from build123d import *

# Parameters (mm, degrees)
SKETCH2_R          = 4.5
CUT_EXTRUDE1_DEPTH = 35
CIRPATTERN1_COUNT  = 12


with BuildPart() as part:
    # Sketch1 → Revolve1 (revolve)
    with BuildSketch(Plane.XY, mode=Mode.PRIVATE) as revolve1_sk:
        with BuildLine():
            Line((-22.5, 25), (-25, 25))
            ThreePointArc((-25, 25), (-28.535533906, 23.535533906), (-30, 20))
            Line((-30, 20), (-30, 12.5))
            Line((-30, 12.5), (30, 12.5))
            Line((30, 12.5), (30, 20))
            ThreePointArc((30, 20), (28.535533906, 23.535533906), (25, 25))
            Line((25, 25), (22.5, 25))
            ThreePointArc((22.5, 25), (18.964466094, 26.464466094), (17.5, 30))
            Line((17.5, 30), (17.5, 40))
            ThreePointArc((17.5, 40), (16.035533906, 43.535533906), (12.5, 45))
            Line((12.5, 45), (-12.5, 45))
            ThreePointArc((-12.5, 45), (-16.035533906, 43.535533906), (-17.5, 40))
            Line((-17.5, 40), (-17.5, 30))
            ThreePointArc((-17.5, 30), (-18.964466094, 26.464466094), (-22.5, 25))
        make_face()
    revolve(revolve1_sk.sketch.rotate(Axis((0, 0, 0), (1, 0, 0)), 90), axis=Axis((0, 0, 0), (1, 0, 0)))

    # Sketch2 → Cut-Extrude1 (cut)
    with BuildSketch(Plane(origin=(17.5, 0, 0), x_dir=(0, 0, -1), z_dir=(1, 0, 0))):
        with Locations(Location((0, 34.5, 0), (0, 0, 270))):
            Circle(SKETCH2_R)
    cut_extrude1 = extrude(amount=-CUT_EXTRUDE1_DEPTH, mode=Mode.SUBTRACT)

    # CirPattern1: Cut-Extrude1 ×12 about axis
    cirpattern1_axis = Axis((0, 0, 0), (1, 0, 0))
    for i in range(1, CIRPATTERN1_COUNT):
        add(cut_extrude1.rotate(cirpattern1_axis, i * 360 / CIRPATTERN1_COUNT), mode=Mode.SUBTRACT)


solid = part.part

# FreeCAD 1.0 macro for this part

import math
import FreeCAD as App
import Part
import Sketcher
from FreeCAD import Vector
Q = App.Units.Quantity

doc = App.newDocument("Part")
body = doc.addObject("PartDesign::Body", "Body")

# Sketch on XY plane
sketch1 = body.newObject("Sketcher::SketchObject", "Sketch")
sketch1.AttachmentSupport = (doc.getObject("XY_Plane"), [""])
sketch1.MapMode = "FlatFace"
sketch1.addGeometry(Part.LineSegment(Vector(-22.5, 25, 0), Vector(-25, 25, 0)), False)
sketch1.addGeometry(Part.ArcOfCircle(Part.Circle(Vector(-25, 20, 0), Vector(0, 0, 1), 5), math.radians(90), math.radians(180)), False)
sketch1.addGeometry(Part.LineSegment(Vector(-30, 20, 0), Vector(-30, 12.5, 0)), False)
sketch1.addGeometry(Part.LineSegment(Vector(-30, 12.5, 0), Vector(30, 12.5, 0)), False)
sketch1.addGeometry(Part.LineSegment(Vector(30, 12.5, 0), Vector(30, 20, 0)), False)
sketch1.addGeometry(Part.ArcOfCircle(Part.Circle(Vector(25, 20, 0), Vector(0, 0, 1), 5), math.radians(0), math.radians(90)), False)
sketch1.addGeometry(Part.LineSegment(Vector(25, 25, 0), Vector(22.5, 25, 0)), False)
sketch1.addGeometry(Part.ArcOfCircle(Part.Circle(Vector(22.5, 30, 0), Vector(0, 0, 1), 5), math.radians(180), math.radians(270)), False)
sketch1.addGeometry(Part.LineSegment(Vector(17.5, 30, 0), Vector(17.5, 40, 0)), False)
sketch1.addGeometry(Part.ArcOfCircle(Part.Circle(Vector(12.5, 40, 0), Vector(0, 0, 1), 5), math.radians(0), math.radians(90)), False)
sketch1.addGeometry(Part.LineSegment(Vector(12.5, 45, 0), Vector(-12.5, 45, 0)), False)
sketch1.addGeometry(Part.ArcOfCircle(Part.Circle(Vector(-12.5, 40, 0), Vector(0, 0, 1), 5), math.radians(90), math.radians(180)), False)
sketch1.addGeometry(Part.LineSegment(Vector(-17.5, 40, 0), Vector(-17.5, 30, 0)), False)
sketch1.addGeometry(Part.ArcOfCircle(Part.Circle(Vector(-22.5, 30, 0), Vector(0, 0, 1), 5), math.radians(-90), math.radians(0)), False)
sketch1.addConstraint(Sketcher.Constraint("Tangent", 0, 2, 1, 1))
sketch1.addConstraint(Sketcher.Constraint("Tangent", 1, 2, 2, 1))
sketch1.addConstraint(Sketcher.Constraint("Coincident", 2, 2, 3, 1))
sketch1.addConstraint(Sketcher.Constraint("Coincident", 3, 2, 4, 1))
sketch1.addConstraint(Sketcher.Constraint("Tangent", 4, 2, 5, 1))
sketch1.addConstraint(Sketcher.Constraint("Tangent", 5, 2, 6, 1))
sketch1.addConstraint(Sketcher.Constraint("Tangent", 6, 2, 7, 2))
sketch1.addConstraint(Sketcher.Constraint("Tangent", 7, 1, 8, 1))
sketch1.addConstraint(Sketcher.Constraint("Tangent", 8, 2, 9, 1))
sketch1.addConstraint(Sketcher.Constraint("Tangent", 9, 2, 10, 1))
sketch1.addConstraint(Sketcher.Constraint("Tangent", 10, 2, 11, 1))
sketch1.addConstraint(Sketcher.Constraint("Tangent", 11, 2, 12, 1))
sketch1.addConstraint(Sketcher.Constraint("Tangent", 12, 2, 13, 2))
sketch1.addConstraint(Sketcher.Constraint("Tangent", 13, 1, 0, 1))
sketch1.addConstraint(Sketcher.Constraint("Horizontal", 0))
sketch1.addConstraint(Sketcher.Constraint("Vertical", 2))
sketch1.addConstraint(Sketcher.Constraint("Horizontal", 3))
sketch1.addConstraint(Sketcher.Constraint("Vertical", 4))
sketch1.addConstraint(Sketcher.Constraint("Horizontal", 6))
sketch1.addConstraint(Sketcher.Constraint("Vertical", 8))
sketch1.addConstraint(Sketcher.Constraint("Horizontal", 10))
sketch1.addConstraint(Sketcher.Constraint("Vertical", 12))
sketch1.addConstraint(Sketcher.Constraint("Equal", 1, 5))
sketch1.addConstraint(Sketcher.Constraint("Equal", 5, 7))
sketch1.addConstraint(Sketcher.Constraint("Equal", 7, 9))
sketch1.addConstraint(Sketcher.Constraint("Equal", 9, 11))
sketch1.addConstraint(Sketcher.Constraint("Equal", 11, 13))
sketch1.addConstraint(Sketcher.Constraint("Symmetric", 1, 3, 5, 3, -2))
sketch1.addConstraint(Sketcher.Constraint("Equal", 0, 6))
sketch1.addConstraint(Sketcher.Constraint("Radius", 1, Q("5 mm")))
sketch1.addConstraint(Sketcher.Constraint("DistanceX", 3, 1, 3, 2, Q("60 mm")))
sketch1.addConstraint(Sketcher.Constraint("DistanceX", 10, 2, 10, 1, Q("25 mm")))
sketch1.addConstraint(Sketcher.Constraint("DistanceY", 8, 1, 8, 2, Q("10 mm")))
sketch1.addConstraint(Sketcher.Constraint("DistanceY", 2, 2, 2, 1, Q("7.5 mm")))
sketch1.addConstraint(Sketcher.Constraint("DistanceY", -1, 1, 1, 3, Q("20 mm")))
revolution = body.newObject("PartDesign::Revolution", "Revolution")
revolution.Profile = sketch1
revolution.ReferenceAxis = (sketch1, ["H_Axis"])
revolution.Angle = 360

# Sketch on YZ plane
sketch2 = body.newObject("Sketcher::SketchObject", "Sketch001")
sketch2.AttachmentSupport = (doc.getObject("YZ_Plane"), [""])
sketch2.MapMode = "FlatFace"
sketch2.AttachmentOffset = App.Placement(Vector(0, 0, 17.5), App.Rotation())
sketch2.addGeometry(Part.Circle(Vector(34.5, 0, 0), Vector(0, 0, 1), 4.5), False)
sketch2.addConstraint(Sketcher.Constraint("PointOnObject", 0, 3, -1))
sketch2.addConstraint(Sketcher.Constraint("Diameter", 0, Q("9 mm")))
sketch2.addConstraint(Sketcher.Constraint("DistanceX", -1, 1, 0, 3, Q("34.5 mm")))
pocket1 = body.newObject("PartDesign::Pocket", "Pocket")
pocket1.Profile = sketch2
pocket1.Length = 35
doc.recompute()

polarpattern = body.newObject("PartDesign::PolarPattern", "PolarPattern")
polarpattern.Originals = [pocket1]
polarpattern.Axis = (doc.getObject("X_Axis"), [""])
polarpattern.Angle = 360
polarpattern.Occurrences = 12
body.Tip = polarpattern

doc.recompute()
